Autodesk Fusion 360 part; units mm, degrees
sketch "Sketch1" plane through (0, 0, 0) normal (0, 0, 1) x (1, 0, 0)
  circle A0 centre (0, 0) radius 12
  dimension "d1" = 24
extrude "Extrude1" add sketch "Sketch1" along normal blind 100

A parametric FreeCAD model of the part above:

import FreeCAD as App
import Part
import Sketcher
from FreeCAD import Vector
Q = App.Units.Quantity

doc = App.newDocument("Part")
body = doc.addObject("PartDesign::Body", "Body")

# Sketch on XY plane
sketch1 = body.newObject("Sketcher::SketchObject", "Sketch")
sketch1.AttachmentSupport = (doc.getObject("XY_Plane"), [""])
sketch1.MapMode = "FlatFace"
sketch1.addGeometry(Part.Circle(Vector(0, 0, 0), Vector(0, 0, 1), 12), False)
sketch1.addConstraint([
    Sketcher.Constraint("Coincident", 0, 3, -1, 1),
    Sketcher.Constraint("Diameter", 0, Q("24 mm")),
])
pad1 = body.newObject("PartDesign::Pad", "Pad")
pad1.Profile = sketch1
pad1.Length = 100

doc.recompute()
